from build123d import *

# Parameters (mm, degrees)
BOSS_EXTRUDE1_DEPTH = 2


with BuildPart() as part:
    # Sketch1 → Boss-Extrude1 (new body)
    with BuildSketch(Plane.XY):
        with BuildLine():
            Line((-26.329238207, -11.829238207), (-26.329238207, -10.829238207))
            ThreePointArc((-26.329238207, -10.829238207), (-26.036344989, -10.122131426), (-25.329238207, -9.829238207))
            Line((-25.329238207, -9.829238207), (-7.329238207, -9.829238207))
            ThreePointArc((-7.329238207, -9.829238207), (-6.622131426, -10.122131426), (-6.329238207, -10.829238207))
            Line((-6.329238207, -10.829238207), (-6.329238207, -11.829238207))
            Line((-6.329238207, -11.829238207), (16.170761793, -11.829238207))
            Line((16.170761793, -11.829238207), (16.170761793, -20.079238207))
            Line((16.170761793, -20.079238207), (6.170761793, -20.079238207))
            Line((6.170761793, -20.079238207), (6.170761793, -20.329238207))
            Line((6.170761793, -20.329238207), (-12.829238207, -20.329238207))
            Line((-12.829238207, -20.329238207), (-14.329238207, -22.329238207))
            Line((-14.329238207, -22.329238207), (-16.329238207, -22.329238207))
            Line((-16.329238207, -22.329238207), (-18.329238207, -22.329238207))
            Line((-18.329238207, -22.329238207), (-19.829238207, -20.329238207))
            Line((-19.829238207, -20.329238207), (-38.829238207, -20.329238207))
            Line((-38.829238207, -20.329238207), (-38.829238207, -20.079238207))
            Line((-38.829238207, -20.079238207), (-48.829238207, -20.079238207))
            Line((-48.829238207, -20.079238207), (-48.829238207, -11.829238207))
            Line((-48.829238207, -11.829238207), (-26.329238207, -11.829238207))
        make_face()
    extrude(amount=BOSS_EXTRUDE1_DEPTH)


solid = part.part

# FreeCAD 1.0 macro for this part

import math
import FreeCAD as App
import Part
import Sketcher
Q = App.Units.Quantity

doc = App.newDocument("Part")
params = doc.addObject("Spreadsheet::Sheet", "Params")
for row, (alias, value) in enumerate([
    ("sketch1_radius", "1 mm"),
    ("sketch1_width", "10 mm"),
    ("sketch1_width2", "19 mm"),
    ("sketch1_width3", "4 mm"),
    ("sketch1_width4", "18 mm"),
    ("pad1_length", "2 mm"),
], start=1):
    params.set(f"A{row}", alias)
    params.set(f"B{row}", "=" + value)
    params.setAlias(f"B{row}", alias)

body = doc.addObject("PartDesign::Body", "Body")

# Sketch on XY plane
sketch1 = body.newObject("Sketcher::SketchObject", "Sketch")
sketch1.AttachmentSupport = (doc.getObject("XY_Plane"), [""])
sketch1.MapMode = "FlatFace"
sketch1.addGeometry([
    Part.LineSegment(App.Vector(-26.329238, -10.829238, 0), App.Vector(-26.329238, -11.829238, 0)),  # 0
    Part.LineSegment(App.Vector(-26.329238, -11.829238, 0), App.Vector(-48.829238, -11.829238, 0)),  # 1
    Part.LineSegment(App.Vector(-48.829238, -11.829238, 0), App.Vector(-48.829238, -20.079238, 0)),  # 2
    Part.LineSegment(App.Vector(-48.829238, -20.079238, 0), App.Vector(-38.829238, -20.079238, 0)),  # 3
    Part.LineSegment(App.Vector(-38.829238, -20.079238, 0), App.Vector(-38.829238, -20.329238, 0)),  # 4
    Part.LineSegment(App.Vector(-38.829238, -20.329238, 0), App.Vector(-19.829238, -20.329238, 0)),  # 5
    Part.LineSegment(App.Vector(-19.829238, -20.329238, 0), App.Vector(-18.329238, -22.329238, 0)),  # 6
    Part.LineSegment(App.Vector(-18.329238, -22.329238, 0), App.Vector(-14.329238, -22.329238, 0)),  # 7
    Part.LineSegment(App.Vector(-14.329238, -22.329238, 0), App.Vector(-12.829238, -20.329238, 0)),  # 8
    Part.LineSegment(App.Vector(-12.829238, -20.329238, 0), App.Vector(6.170762, -20.329238, 0)),  # 9
    Part.LineSegment(App.Vector(6.170762, -20.329238, 0), App.Vector(6.170762, -20.079238, 0)),  # 10
    Part.LineSegment(App.Vector(6.170762, -20.079238, 0), App.Vector(16.170762, -20.079238, 0)),  # 11
    Part.LineSegment(App.Vector(16.170762, -20.079238, 0), App.Vector(16.170762, -11.829238, 0)),  # 12
    Part.LineSegment(App.Vector(16.170762, -11.829238, 0), App.Vector(-6.329238, -11.829238, 0)),  # 13
    Part.LineSegment(App.Vector(-6.329238, -11.829238, 0), App.Vector(-6.329238, -10.829238, 0)),  # 14
    Part.ArcOfCircle(Part.Circle(App.Vector(-7.329238, -10.829238, 0), App.Vector(0, 0, 1), 1), math.radians(0), math.radians(90)),  # 15
    Part.LineSegment(App.Vector(-7.329238, -9.829238, 0), App.Vector(-25.329238, -9.829238, 0)),  # 16
    Part.ArcOfCircle(Part.Circle(App.Vector(-25.329238, -10.829238, 0), App.Vector(0, 0, 1), 1), math.radians(90), math.radians(180)),  # 17
], False)
sketch1.addConstraint([
    Sketcher.Constraint("Coincident", 0, 2, 1, 1),
    Sketcher.Constraint("Coincident", 1, 2, 2, 1),
    Sketcher.Constraint("Coincident", 2, 2, 3, 1),
    Sketcher.Constraint("Coincident", 3, 2, 4, 1),
    Sketcher.Constraint("Coincident", 4, 2, 5, 1),
    Sketcher.Constraint("Coincident", 5, 2, 6, 1),
    Sketcher.Constraint("Coincident", 6, 2, 7, 1),
    Sketcher.Constraint("Coincident", 7, 2, 8, 1),
    Sketcher.Constraint("Coincident", 8, 2, 9, 1),
    Sketcher.Constraint("Coincident", 9, 2, 10, 1),
    Sketcher.Constraint("Coincident", 10, 2, 11, 1),
    Sketcher.Constraint("Coincident", 11, 2, 12, 1),
    Sketcher.Constraint("Coincident", 12, 2, 13, 1),
    Sketcher.Constraint("Coincident", 13, 2, 14, 1),
    Sketcher.Constraint("Tangent", 14, 2, 15, 1),
    Sketcher.Constraint("Tangent", 15, 2, 16, 1),
    Sketcher.Constraint("Tangent", 16, 2, 17, 1),
    Sketcher.Constraint("Tangent", 17, 2, 0, 1),
    Sketcher.Constraint("Vertical", 0),
    Sketcher.Constraint("Horizontal", 1),
    Sketcher.Constraint("Vertical", 2),
    Sketcher.Constraint("Horizontal", 3),
    Sketcher.Constraint("Vertical", 4),
    Sketcher.Constraint("Horizontal", 5),
    Sketcher.Constraint("Horizontal", 7),
    Sketcher.Constraint("Horizontal", 9),
    Sketcher.Constraint("Vertical", 10),
    Sketcher.Constraint("Horizontal", 11),
    Sketcher.Constraint("Vertical", 12),
    Sketcher.Constraint("Horizontal", 13),
    Sketcher.Constraint("Vertical", 14),
    Sketcher.Constraint("Horizontal", 16),
    Sketcher.Constraint("Equal", 15, 17),
    Sketcher.Constraint("Horizontal", 5, 2, 8, 2),
    Sketcher.Constraint("Horizontal", 3, 2, 10, 2),
    Sketcher.Constraint("Horizontal", 1, 2, 12, 2),
    Sketcher.Constraint("Equal", 5, 9),
    Sketcher.Constraint("Equal", 3, 11),
    Sketcher.Constraint("Equal", 1, 13),
    Sketcher.Constraint("Equal", 6, 8),
    Sketcher.Constraint("Radius", 15, Q("1 mm")),
    Sketcher.Constraint("DistanceX", 3, 1, 3, 2, Q("10 mm")),
    Sketcher.Constraint("DistanceX", 5, 1, 5, 2, Q("19 mm")),
    Sketcher.Constraint("DistanceX", 7, 1, 7, 2, Q("4 mm")),
    Sketcher.Constraint("DistanceX", 16, 2, 16, 1, Q("18 mm")),
    Sketcher.Constraint("DistanceY", 0, 2, 0, 1, Q("1 mm")),
    Sketcher.Constraint("DistanceX", 1, 2, 1, 1, Q("22.5 mm")),
    Sketcher.Constraint("DistanceY", 6, 2, 5, 2, Q("2 mm")),
    Sketcher.Constraint("DistanceY", 2, 2, 2, 1, Q("8.25 mm")),
    Sketcher.Constraint("DistanceY", 4, 2, 4, 1, Q("0.25 mm")),
    Sketcher.Constraint("DistanceX", 15, 3, -1, 1, Q("7.329238 mm")),
    Sketcher.Constraint("DistanceY", 15, 3, -1, 1, Q("10.829238 mm")),
])
sketch1.setExpression("Constraints[40]", "Params.sketch1_radius")
sketch1.setExpression("Constraints[41]", "Params.sketch1_width")
sketch1.setExpression("Constraints[42]", "Params.sketch1_width2")
sketch1.setExpression("Constraints[43]", "Params.sketch1_width3")
sketch1.setExpression("Constraints[44]", "Params.sketch1_width4")
pad1 = body.newObject("PartDesign::Pad", "Pad")
pad1.Profile = sketch1
pad1.setExpression("Length", "Params.pad1_length")

doc.recompute()
